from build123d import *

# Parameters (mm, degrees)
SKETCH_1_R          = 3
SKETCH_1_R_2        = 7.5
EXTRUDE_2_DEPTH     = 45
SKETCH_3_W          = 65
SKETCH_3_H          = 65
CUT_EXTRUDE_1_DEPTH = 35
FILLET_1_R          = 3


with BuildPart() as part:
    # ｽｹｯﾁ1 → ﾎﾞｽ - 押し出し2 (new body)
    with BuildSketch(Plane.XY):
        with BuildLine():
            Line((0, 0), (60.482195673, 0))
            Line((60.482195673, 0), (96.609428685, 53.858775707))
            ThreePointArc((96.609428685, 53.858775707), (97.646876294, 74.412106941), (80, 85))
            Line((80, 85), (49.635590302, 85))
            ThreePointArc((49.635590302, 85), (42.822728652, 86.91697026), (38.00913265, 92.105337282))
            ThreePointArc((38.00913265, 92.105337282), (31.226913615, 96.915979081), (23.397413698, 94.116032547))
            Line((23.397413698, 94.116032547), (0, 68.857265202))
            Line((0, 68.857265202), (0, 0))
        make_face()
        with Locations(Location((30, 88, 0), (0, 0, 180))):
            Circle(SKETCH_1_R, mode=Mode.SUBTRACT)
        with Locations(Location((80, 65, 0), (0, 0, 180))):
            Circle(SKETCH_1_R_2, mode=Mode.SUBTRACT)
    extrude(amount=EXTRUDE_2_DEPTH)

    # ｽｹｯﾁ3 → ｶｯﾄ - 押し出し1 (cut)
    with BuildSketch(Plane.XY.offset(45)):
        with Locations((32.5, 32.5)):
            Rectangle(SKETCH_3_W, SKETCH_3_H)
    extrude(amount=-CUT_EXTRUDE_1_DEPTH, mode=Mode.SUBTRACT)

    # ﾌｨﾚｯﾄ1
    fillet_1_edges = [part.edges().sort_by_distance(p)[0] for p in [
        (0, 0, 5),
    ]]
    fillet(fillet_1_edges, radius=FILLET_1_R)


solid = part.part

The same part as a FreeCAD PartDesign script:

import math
import FreeCAD as App
import Part
import Sketcher

V = App.Vector
Q = App.Units.Quantity


def edges_at(feature, points):
    """Names of the edges that pass closest to the given points."""
    edges = feature.Shape.Edges
    near = lambda p: min(range(len(edges)), key=lambda i: edges[i].distToShape(Part.Vertex(*p))[0])
    return sorted({f"Edge{near(p) + 1}" for p in points})

doc = App.newDocument("Part")
body = doc.addObject("PartDesign::Body", "Body")

# Sketch on XY plane
sketch1 = body.newObject("Sketcher::SketchObject", "Sketch")
sketch1.AttachmentSupport = (doc.getObject("XY_Plane"), [""])
sketch1.MapMode = "FlatFace"
sketch1.addGeometry([
    Part.LineSegment(V(0, 0, 0), V(60.5, 0, 0)),  # 0
    Part.LineSegment(V(60.5, 0, 0), V(96.6, 53.9, 0)),  # 1
    Part.ArcOfCircle(Part.Circle(V(80, 65, 0), V(0, 0, 1), 20), math.radians(-34), math.radians(90)),  # 2
    Part.LineSegment(V(80, 85, 0), V(49.6, 85, 0)),  # 3
    Part.ArcOfCircle(Part.Circle(V(49.6, 98.1, 0), V(0, 0, 1), 13.1), math.radians(-153), math.radians(-90)),  # 4
    Part.ArcOfCircle(Part.Circle(V(30, 88, 0), V(0, 0, 1), 9), math.radians(27), math.radians(137)),  # 5
    Part.LineSegment(V(23.4, 94.1, 0), V(0, 68.9, 0)),  # 6
    Part.LineSegment(V(0, 68.9, 0), V(0, 0, 0)),  # 7
    Part.Circle(V(80, 65, 0), V(0, 0, 1), 7.5),  # 8
    Part.Circle(V(30, 88, 0), V(0, 0, 1), 3),  # 9
], False)
sketch1.addConstraint([
    Sketcher.Constraint("Coincident", 0, 2, 1, 1),
    Sketcher.Constraint("Tangent", 1, 2, 2, 1),
    Sketcher.Constraint("Tangent", 2, 2, 3, 1),
    Sketcher.Constraint("Tangent", 3, 2, 4, 2),
    Sketcher.Constraint("Tangent", 4, 1, 5, 1),
    Sketcher.Constraint("Tangent", 5, 2, 6, 1),
    Sketcher.Constraint("Coincident", 6, 2, 7, 1),
    Sketcher.Constraint("Coincident", 7, 2, 0, 1),
    Sketcher.Constraint("Horizontal", 0),
    Sketcher.Constraint("Horizontal", 3),
    Sketcher.Constraint("Vertical", 7),
    Sketcher.Constraint("Coincident", 7, 2, -1, 1),
    Sketcher.Constraint("Coincident", 8, 3, 2, 3),
    Sketcher.Constraint("Coincident", 9, 3, 5, 3),
    Sketcher.Constraint("Diameter", 8, Q("15 mm")),
    Sketcher.Constraint("Diameter", 9, Q("6 mm")),
    Sketcher.Constraint("Radius", 2, Q("20 mm")),
    Sketcher.Constraint("Radius", 5, Q("9 mm")),
    Sketcher.Constraint("DistanceX", -1, 1, 2, 3, Q("80 mm")),
    Sketcher.Constraint("DistanceY", -1, 1, 2, 3, Q("65 mm")),
    Sketcher.Constraint("DistanceX", -1, 1, 5, 3, Q("30 mm")),
    Sketcher.Constraint("DistanceY", -1, 1, 5, 3, Q("88 mm")),
    Sketcher.Constraint("Radius", 4, Q("13.06485 mm")),
    Sketcher.Constraint("Distance", 6, Q("34.430282 mm")),
    Sketcher.Constraint("DistanceX", 0, 1, 0, 2, Q("60.482196 mm")),
])
pad1 = body.newObject("PartDesign::Pad", "Pad")
pad1.Profile = sketch1
pad1.Length = 45

# Sketch on XY plane
sketch2 = body.newObject("Sketcher::SketchObject", "Sketch001")
sketch2.AttachmentSupport = (doc.getObject("XY_Plane"), [""])
sketch2.MapMode = "FlatFace"
sketch2.AttachmentOffset = App.Placement(V(0, 0, 45), App.Rotation())
sketch2.addGeometry([
    Part.LineSegment(V(0, 65, 0), V(0, 0, 0)),
    Part.LineSegment(V(0, 0, 0), V(65, 0, 0)),
    Part.LineSegment(V(65, 0, 0), V(65, 65, 0)),
    Part.LineSegment(V(65, 65, 0), V(0, 65, 0)),
], False)
sketch2.addConstraint([
    Sketcher.Constraint("Coincident", 0, 2, 1, 1),
    Sketcher.Constraint("Coincident", 1, 2, 2, 1),
    Sketcher.Constraint("Coincident", 2, 2, 3, 1),
    Sketcher.Constraint("Coincident", 3, 2, 0, 1),
    Sketcher.Constraint("Vertical", 0),
    Sketcher.Constraint("Horizontal", 1),
    Sketcher.Constraint("Vertical", 2),
    Sketcher.Constraint("Horizontal", 3),
    Sketcher.Constraint("Coincident", 0, 2, -1, 1),
    Sketcher.Constraint("Equal", 3, 0),
    Sketcher.Constraint("DistanceX", 1, 1, 1, 2, Q("65 mm")),
])
pocket1 = body.newObject("PartDesign::Pocket", "Pocket")
pocket1.Profile = sketch2
pocket1.Length = 35
doc.recompute()

fillet = body.newObject("PartDesign::Fillet", "Fillet")
fillet.Base = (pocket1, edges_at(pocket1, [(0, 0, 5)]))
fillet.Radius = 3

doc.recompute()
